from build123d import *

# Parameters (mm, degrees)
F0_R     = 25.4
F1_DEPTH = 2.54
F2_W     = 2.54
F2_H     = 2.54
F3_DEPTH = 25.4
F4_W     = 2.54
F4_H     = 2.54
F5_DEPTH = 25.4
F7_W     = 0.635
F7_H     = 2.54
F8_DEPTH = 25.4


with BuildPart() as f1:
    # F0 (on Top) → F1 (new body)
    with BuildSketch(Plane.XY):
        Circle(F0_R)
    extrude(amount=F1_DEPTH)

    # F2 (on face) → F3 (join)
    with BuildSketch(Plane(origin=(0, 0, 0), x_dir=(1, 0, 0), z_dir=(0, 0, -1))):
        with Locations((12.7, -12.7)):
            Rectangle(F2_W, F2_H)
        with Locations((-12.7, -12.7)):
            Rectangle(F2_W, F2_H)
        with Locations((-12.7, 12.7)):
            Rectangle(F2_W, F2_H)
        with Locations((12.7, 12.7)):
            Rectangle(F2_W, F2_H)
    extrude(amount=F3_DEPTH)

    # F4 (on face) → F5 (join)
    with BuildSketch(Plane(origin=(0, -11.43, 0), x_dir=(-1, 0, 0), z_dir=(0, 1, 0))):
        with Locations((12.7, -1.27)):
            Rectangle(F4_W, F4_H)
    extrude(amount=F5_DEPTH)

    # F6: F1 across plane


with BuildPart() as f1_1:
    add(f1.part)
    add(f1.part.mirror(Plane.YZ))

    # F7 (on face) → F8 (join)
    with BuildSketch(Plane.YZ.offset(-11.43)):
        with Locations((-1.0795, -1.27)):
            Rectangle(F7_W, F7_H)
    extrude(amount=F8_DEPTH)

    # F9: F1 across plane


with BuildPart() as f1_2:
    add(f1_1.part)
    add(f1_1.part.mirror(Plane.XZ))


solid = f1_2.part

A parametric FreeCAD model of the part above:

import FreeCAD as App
import Part
import Sketcher

V = App.Vector
Q = App.Units.Quantity


def add_polygon(sketch, points):
    """Adds a closed chain of lines whose ends are joined by coincident constraints."""
    first, n = sketch.GeometryCount, len(points)
    for a, b in zip(points, points[1:] + points[:1]):
        sketch.addGeometry(Part.LineSegment(App.Vector(*a, 0), App.Vector(*b, 0)), False)
    for i in range(n):
        sketch.addConstraint(Sketcher.Constraint("Coincident", first + i, 2, first + (i + 1) % n, 1))

doc = App.newDocument("Part")
body = doc.addObject("PartDesign::Body", "Body")

sketch1 = body.newObject("Sketcher::SketchObject", "Sketch")
sketch1.AttachmentSupport = (doc.getObject("XY_Plane"), [""])
sketch1.MapMode = "FlatFace"
sketch1.addGeometry(Part.Circle(V(0, 0, 0), V(0, 0, 1), 25), False)
sketch1.addConstraint([
    Sketcher.Constraint("Coincident", 0, 3, -1, 1),
    Sketcher.Constraint("Diameter", 0, Q("2 in")),
])
pad1 = body.newObject("PartDesign::Pad", "Pad")
pad1.Profile = sketch1
pad1.Length = Q("0.1 in")

sketch2 = body.newObject("Sketcher::SketchObject", "Sketch001")
sketch2.AttachmentSupport = (doc.getObject("XY_Plane"), [""])
sketch2.MapMode = "FlatFace"
add_polygon(sketch2, [(11.4, 11.4), (11.4, 14), (14, 14), (14, 11.4)])
add_polygon(sketch2, [(-14, 11.4), (-14, 14), (-11.4, 14), (-11.4, 11.4)])
add_polygon(sketch2, [(-14, -14), (-14, -11.4), (-11.4, -11.4), (-11.4, -14)])
add_polygon(sketch2, [(11.4, -14), (11.4, -11.4), (14, -11.4), (14, -14)])
sketch2.addConstraint([
    Sketcher.Constraint("Vertical", 0),
    Sketcher.Constraint("Horizontal", 1),
    Sketcher.Constraint("Vertical", 2),
    Sketcher.Constraint("Horizontal", 3),
    Sketcher.Constraint("Vertical", 4),
    Sketcher.Constraint("Horizontal", 5),
    Sketcher.Constraint("Vertical", 6),
    Sketcher.Constraint("Horizontal", 7),
    Sketcher.Constraint("Vertical", 8),
    Sketcher.Constraint("Horizontal", 9),
    Sketcher.Constraint("Vertical", 10),
    Sketcher.Constraint("Horizontal", 11),
    Sketcher.Constraint("Vertical", 12),
    Sketcher.Constraint("Horizontal", 13),
    Sketcher.Constraint("Vertical", 14),
    Sketcher.Constraint("Horizontal", 15),
    Sketcher.Constraint("Symmetric", 2, 2, 8, 2, -1, 1),
    Sketcher.Constraint("Symmetric", 0, 2, 10, 2, -1, 1),
    Sketcher.Constraint("Symmetric", 6, 2, 12, 2, -1, 1),
    Sketcher.Constraint("Symmetric", 4, 2, 14, 2, -1, 1),
    Sketcher.Constraint("Symmetric", 1, 2, 4, 2, -2),
    Sketcher.Constraint("Symmetric", 3, 2, 6, 2, -2),
    Sketcher.Constraint("Equal", 15, 0),
    Sketcher.Constraint("DistanceX", 1, 1, 1, 2, Q("0.1 in")),
    Sketcher.Constraint("DistanceX", 4, 2, 0, 2, Q("1 in")),
    Sketcher.Constraint("DistanceY", 8, 2, 4, 2, Q("1 in")),
])
pad2 = body.newObject("PartDesign::Pad", "Pad001")
pad2.Profile = sketch2
pad2.Length = Q("1 in")
pad2.Reversed = True

sketch3 = body.newObject("Sketcher::SketchObject", "Sketch002")
sketch3.AttachmentSupport = (doc.getObject("XZ_Plane"), [""])
sketch3.MapMode = "FlatFace"
sketch3.AttachmentOffset = App.Placement(V(0, 0, 0.45 * 25.4), App.Rotation())
add_polygon(sketch3, [(-11.4, 0), (-11.4, -2.5), (-14, -2.5), (-14, 0)])
sketch3.addConstraint([
    Sketcher.Constraint("Vertical", 0),
    Sketcher.Constraint("Horizontal", 1),
    Sketcher.Constraint("Vertical", 2),
    Sketcher.Constraint("Horizontal", 3),
    Sketcher.Constraint("PointOnObject", 2, 2, -1),
    Sketcher.Constraint("Equal", 3, 0),
    Sketcher.Constraint("DistanceX", 1, 2, 1, 1, Q("0.1 in")),
    Sketcher.Constraint("DistanceX", 0, 2, -1, 1, Q("0.45 in")),
])
pad3 = body.newObject("PartDesign::Pad", "Pad002")
pad3.Profile = sketch3
pad3.Length = Q("1 in")
pad3.Reversed = True
body2 = doc.addObject("PartDesign::Body", "Body001")
doc.recompute()

body2.BaseFeature = body
doc.recompute()

mirroring = doc.addObject("Part::Mirroring", "Mirroring")
mirroring.Source = body
mirroring.Base = V(0, 0, 0)
mirroring.Normal = V(1, 0, 0)
body3 = doc.addObject("PartDesign::Body", "Body002")
body3.BaseFeature = mirroring
boolean = body2.newObject("PartDesign::Boolean", "Boolean")
boolean.Type = "Fuse"
boolean.addObjects([body3])
doc.recompute()

sketch4 = body2.newObject("Sketcher::SketchObject", "Sketch003")
sketch4.AttachmentSupport = (doc.getObject("YZ_Plane001"), [""])
sketch4.MapMode = "FlatFace"
sketch4.AttachmentOffset = App.Placement(V(0, 0, -0.45 * 25.4), App.Rotation())
add_polygon(sketch4, [(-1.4, 0), (-1.4, -2.5), (-0.8, -2.5), (-0.8, 0)])
sketch4.addConstraint([
    Sketcher.Constraint("Vertical", 0),
    Sketcher.Constraint("Horizontal", 1),
    Sketcher.Constraint("Vertical", 2),
    Sketcher.Constraint("Horizontal", 3),
    Sketcher.Constraint("PointOnObject", 2, 2, -1),
    Sketcher.Constraint("DistanceY", 0, 2, 0, 1, Q("0.1 in")),
    Sketcher.Constraint("DistanceX", 1, 1, 1, 2, Q("0.025 in")),
    Sketcher.Constraint("DistanceX", 1, 2, -1, 1, Q("0.03 in")),
])
pad4 = body2.newObject("PartDesign::Pad", "Pad003")
pad4.Profile = sketch4
pad4.Length = Q("1 in")
body4 = doc.addObject("PartDesign::Body", "Body003")
doc.recompute()

body4.BaseFeature = body2
doc.recompute()

mirroring2 = doc.addObject("Part::Mirroring", "Mirroring001")
mirroring2.Source = body2
mirroring2.Base = V(0, 0, 0)
mirroring2.Normal = V(0, -1, 0)
body5 = doc.addObject("PartDesign::Body", "Body004")
body5.BaseFeature = mirroring2
boolean2 = body4.newObject("PartDesign::Boolean", "Boolean001")
boolean2.Type = "Fuse"
boolean2.addObjects([body5])
doc.recompute()
mirroring.Visibility = False
mirroring2.Visibility = False

doc.recompute()
